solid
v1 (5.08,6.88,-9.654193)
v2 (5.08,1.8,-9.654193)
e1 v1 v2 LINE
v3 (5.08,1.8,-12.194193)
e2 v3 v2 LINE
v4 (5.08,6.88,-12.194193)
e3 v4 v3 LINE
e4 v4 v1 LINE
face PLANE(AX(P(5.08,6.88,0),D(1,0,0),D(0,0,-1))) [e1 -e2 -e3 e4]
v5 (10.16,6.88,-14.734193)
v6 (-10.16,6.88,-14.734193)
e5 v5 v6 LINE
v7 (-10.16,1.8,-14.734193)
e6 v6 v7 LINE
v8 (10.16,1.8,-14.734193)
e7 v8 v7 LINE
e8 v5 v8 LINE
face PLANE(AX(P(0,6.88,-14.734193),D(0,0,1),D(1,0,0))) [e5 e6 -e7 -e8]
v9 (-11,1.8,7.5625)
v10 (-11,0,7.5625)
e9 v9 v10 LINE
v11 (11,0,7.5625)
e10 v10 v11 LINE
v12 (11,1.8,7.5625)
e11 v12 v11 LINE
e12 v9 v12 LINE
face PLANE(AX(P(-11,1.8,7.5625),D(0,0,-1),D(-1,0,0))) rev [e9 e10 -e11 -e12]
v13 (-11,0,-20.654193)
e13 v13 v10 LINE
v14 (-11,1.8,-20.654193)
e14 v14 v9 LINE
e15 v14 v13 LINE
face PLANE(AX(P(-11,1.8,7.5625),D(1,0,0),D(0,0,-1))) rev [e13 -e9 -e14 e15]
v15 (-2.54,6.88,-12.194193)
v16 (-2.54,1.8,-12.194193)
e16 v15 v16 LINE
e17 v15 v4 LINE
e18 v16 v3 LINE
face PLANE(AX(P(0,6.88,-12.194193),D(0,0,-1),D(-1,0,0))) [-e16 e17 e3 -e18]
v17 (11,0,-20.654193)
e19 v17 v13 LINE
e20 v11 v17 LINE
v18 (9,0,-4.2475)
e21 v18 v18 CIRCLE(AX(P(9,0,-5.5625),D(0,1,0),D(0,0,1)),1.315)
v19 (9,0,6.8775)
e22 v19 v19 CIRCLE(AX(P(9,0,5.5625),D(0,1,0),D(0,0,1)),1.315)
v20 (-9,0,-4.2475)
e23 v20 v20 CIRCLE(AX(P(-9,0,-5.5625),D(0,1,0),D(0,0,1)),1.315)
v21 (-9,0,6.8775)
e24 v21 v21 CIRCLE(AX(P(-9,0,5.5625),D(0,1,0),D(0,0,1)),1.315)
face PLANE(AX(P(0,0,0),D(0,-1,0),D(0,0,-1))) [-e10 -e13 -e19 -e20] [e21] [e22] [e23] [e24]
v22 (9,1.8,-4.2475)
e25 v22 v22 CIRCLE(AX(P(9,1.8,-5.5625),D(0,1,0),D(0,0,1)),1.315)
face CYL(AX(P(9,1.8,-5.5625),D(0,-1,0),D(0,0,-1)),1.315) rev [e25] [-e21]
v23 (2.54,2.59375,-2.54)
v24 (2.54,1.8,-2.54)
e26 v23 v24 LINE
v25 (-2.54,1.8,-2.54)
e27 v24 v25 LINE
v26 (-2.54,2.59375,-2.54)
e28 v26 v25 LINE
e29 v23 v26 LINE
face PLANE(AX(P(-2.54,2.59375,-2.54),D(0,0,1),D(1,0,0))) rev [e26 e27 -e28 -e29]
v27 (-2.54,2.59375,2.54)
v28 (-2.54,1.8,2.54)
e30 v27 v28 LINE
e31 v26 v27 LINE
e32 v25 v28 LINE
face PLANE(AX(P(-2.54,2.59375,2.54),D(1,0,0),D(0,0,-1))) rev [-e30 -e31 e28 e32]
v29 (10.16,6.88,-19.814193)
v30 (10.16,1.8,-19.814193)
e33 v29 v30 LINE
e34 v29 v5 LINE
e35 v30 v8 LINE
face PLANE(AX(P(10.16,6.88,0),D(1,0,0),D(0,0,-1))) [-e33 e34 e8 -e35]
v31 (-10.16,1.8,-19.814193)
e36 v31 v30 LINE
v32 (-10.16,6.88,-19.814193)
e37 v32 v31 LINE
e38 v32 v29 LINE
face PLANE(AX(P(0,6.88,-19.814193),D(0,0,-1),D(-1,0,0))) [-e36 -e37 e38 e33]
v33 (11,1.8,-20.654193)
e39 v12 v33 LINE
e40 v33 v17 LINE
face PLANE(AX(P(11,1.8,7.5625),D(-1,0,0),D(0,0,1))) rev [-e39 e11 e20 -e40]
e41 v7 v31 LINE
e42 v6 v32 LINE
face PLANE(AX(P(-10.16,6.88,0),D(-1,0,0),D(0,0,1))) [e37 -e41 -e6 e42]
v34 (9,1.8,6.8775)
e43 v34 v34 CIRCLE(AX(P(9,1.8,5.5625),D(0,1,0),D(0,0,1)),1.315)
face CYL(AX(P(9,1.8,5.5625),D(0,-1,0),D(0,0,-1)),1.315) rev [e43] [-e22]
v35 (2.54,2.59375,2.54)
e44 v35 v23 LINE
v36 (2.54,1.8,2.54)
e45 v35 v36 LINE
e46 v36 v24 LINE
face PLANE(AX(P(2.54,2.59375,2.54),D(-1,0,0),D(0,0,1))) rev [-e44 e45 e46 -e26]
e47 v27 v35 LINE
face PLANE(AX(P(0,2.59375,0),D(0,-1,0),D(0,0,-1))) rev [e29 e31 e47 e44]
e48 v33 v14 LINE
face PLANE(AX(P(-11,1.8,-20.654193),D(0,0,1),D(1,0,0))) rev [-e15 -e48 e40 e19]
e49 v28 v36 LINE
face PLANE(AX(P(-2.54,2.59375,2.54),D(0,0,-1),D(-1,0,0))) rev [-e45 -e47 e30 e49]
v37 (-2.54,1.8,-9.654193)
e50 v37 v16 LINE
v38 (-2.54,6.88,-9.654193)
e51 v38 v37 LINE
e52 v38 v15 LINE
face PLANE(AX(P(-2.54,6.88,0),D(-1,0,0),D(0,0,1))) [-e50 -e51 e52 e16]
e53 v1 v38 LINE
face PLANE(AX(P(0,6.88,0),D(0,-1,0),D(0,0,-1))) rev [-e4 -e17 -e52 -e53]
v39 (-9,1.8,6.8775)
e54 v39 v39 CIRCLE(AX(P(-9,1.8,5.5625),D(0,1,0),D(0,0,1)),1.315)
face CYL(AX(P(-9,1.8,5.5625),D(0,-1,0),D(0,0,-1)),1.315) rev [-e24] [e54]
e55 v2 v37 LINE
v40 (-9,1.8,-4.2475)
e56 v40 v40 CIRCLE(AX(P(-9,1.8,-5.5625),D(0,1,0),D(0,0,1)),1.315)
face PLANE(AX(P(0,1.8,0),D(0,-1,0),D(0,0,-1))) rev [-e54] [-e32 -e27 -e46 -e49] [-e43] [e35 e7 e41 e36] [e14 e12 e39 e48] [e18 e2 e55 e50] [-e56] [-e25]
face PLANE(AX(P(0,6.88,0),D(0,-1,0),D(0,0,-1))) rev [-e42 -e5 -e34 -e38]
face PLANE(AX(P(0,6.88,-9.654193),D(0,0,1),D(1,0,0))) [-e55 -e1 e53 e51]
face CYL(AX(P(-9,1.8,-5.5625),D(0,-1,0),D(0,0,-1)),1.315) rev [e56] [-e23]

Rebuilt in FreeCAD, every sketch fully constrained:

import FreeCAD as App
import Part
import Sketcher
from FreeCAD import Vector
Q = App.Units.Quantity


def add_polygon(sketch, points):
    """Adds a closed chain of lines whose ends are joined by coincident constraints."""
    first, n = sketch.GeometryCount, len(points)
    for a, b in zip(points, points[1:] + points[:1]):
        sketch.addGeometry(Part.LineSegment(App.Vector(*a, 0), App.Vector(*b, 0)), False)
    for i in range(n):
        sketch.addConstraint(Sketcher.Constraint("Coincident", first + i, 2, first + (i + 1) % n, 1))

doc = App.newDocument("Part")
params = doc.addObject("Spreadsheet::Sheet", "Params")
for row, (alias, value) in enumerate([
    ("pad1_length", "1.8 mm"),
    ("sketch2_width", "0.2 in"),
    ("pad2_length", "0.03125 in"),
    ("sketch3_width", "0.3 in"),
    ("sketch3_width2", "0.8 in"),
    ("sketch3_height", "0.1 in"),
    ("sketch3_height2", "0.2 in"),
    ("pad3_length", "0.2 in"),
], start=1):
    params.set(f"A{row}", alias)
    params.set(f"B{row}", "=" + value)
    params.setAlias(f"B{row}", alias)

body = doc.addObject("PartDesign::Body", "Body")

# Sketch on XZ plane
sketch1 = body.newObject("Sketcher::SketchObject", "Sketch")
sketch1.AttachmentSupport = (doc.getObject("XZ_Plane"), [""])
sketch1.MapMode = "FlatFace"
add_polygon(sketch1, [(-11, -20.7), (-11, 7.6), (11, 7.6), (11, -20.7)])  # lines 0-3
sketch1.addGeometry(Part.Circle(Vector(-9, 5.6, 0), Vector(0, 0, 1), 1.3), False)  # 4
sketch1.addGeometry(Part.Circle(Vector(9, 5.6, 0), Vector(0, 0, 1), 1.3), False)  # 5
sketch1.addGeometry(Part.Circle(Vector(-9, -5.6, 0), Vector(0, 0, 1), 1.3), False)  # 6
sketch1.addGeometry(Part.Circle(Vector(9, -5.6, 0), Vector(0, 0, 1), 1.3), False)  # 7
sketch1.addConstraint(Sketcher.Constraint("Vertical", 0))
sketch1.addConstraint(Sketcher.Constraint("Horizontal", 1))
sketch1.addConstraint(Sketcher.Constraint("Vertical", 2))
sketch1.addConstraint(Sketcher.Constraint("Horizontal", 3))
sketch1.addConstraint(Sketcher.Constraint("Equal", 4, 5))
sketch1.addConstraint(Sketcher.Constraint("Equal", 5, 6))
sketch1.addConstraint(Sketcher.Constraint("Equal", 6, 7))
sketch1.addConstraint(Sketcher.Constraint("Symmetric", 5, 3, 6, 3, -1, 1))
sketch1.addConstraint(Sketcher.Constraint("Symmetric", 4, 3, 7, 3, -1, 1))
sketch1.addConstraint(Sketcher.Constraint("Symmetric", 4, 3, 5, 3, -2))
sketch1.addConstraint(Sketcher.Constraint("Diameter", 4, Q("2.63 mm")))
sketch1.addConstraint(Sketcher.Constraint("DistanceX", 1, 1, 1, 2, Q("22 mm")))
sketch1.addConstraint(Sketcher.Constraint("DistanceX", 4, 3, -1, 1, Q("9 mm")))
sketch1.addConstraint(Sketcher.Constraint("DistanceY", -1, 1, 4, 3, Q("5.5625 mm")))
sketch1.addConstraint(Sketcher.Constraint("DistanceX", 0, 2, -1, 1, Q("11 mm")))
sketch1.addConstraint(Sketcher.Constraint("DistanceY", -1, 1, 0, 2, Q("7.5625 mm")))
sketch1.addConstraint(Sketcher.Constraint("DistanceY", 0, 1, 0, 2, Q("28.216693 mm")))
pad1 = body.newObject("PartDesign::Pad", "Pad")
pad1.Profile = sketch1
pad1.setExpression("Length", "Params.pad1_length")
pad1.Reversed = True

# Sketch on XZ plane
sketch2 = body.newObject("Sketcher::SketchObject", "Sketch001")
sketch2.AttachmentSupport = (doc.getObject("XZ_Plane"), [""])
sketch2.MapMode = "FlatFace"
sketch2.AttachmentOffset = App.Placement(Vector(0, 0, -1.8), App.Rotation())
add_polygon(sketch2, [(-3, -3), (-3, 3), (3, 3), (3, -3)])  # lines 0-3
sketch2.addConstraint(Sketcher.Constraint("Vertical", 0))
sketch2.addConstraint(Sketcher.Constraint("Horizontal", 1))
sketch2.addConstraint(Sketcher.Constraint("Vertical", 2))
sketch2.addConstraint(Sketcher.Constraint("Horizontal", 3))
sketch2.addConstraint(Sketcher.Constraint("Symmetric", 0, 2, 2, 2, -1, 1))
sketch2.addConstraint(Sketcher.Constraint("Equal", 3, 0))
sketch2.addConstraint(Sketcher.Constraint("DistanceX", 1, 1, 1, 2, Q("0.2 in")))
sketch2.setExpression("Constraints[10]", "Params.sketch2_width")
pad2 = body.newObject("PartDesign::Pad", "Pad001")
pad2.Profile = sketch2
pad2.setExpression("Length", "Params.pad2_length")
pad2.Reversed = True

# Sketch on XZ plane
sketch3 = body.newObject("Sketcher::SketchObject", "Sketch002")
sketch3.AttachmentSupport = (doc.getObject("XZ_Plane"), [""])
sketch3.MapMode = "FlatFace"
sketch3.AttachmentOffset = App.Placement(Vector(0, 0, -1.8), App.Rotation())
add_polygon(sketch3, [(5.1, -12.2), (5.1, -9.7), (-2.5, -9.7), (-2.5, -12.2)])  # lines 0-3
add_polygon(sketch3, [(10.2, -19.8), (10.2, -14.7), (-10.2, -14.7), (-10.2, -19.8)])  # lines 4-7
sketch3.addConstraint(Sketcher.Constraint("Vertical", 0))
sketch3.addConstraint(Sketcher.Constraint("Horizontal", 1))
sketch3.addConstraint(Sketcher.Constraint("Vertical", 2))
sketch3.addConstraint(Sketcher.Constraint("Horizontal", 3))
sketch3.addConstraint(Sketcher.Constraint("Vertical", 4))
sketch3.addConstraint(Sketcher.Constraint("Horizontal", 5))
sketch3.addConstraint(Sketcher.Constraint("Vertical", 6))
sketch3.addConstraint(Sketcher.Constraint("Horizontal", 7))
sketch3.addConstraint(Sketcher.Constraint("DistanceX", 1, 2, 1, 1, Q("0.3 in")))
sketch3.addConstraint(Sketcher.Constraint("DistanceX", 5, 2, 5, 1, Q("0.8 in")))
sketch3.addConstraint(Sketcher.Constraint("DistanceY", 0, 1, 0, 2, Q("0.1 in")))
sketch3.addConstraint(Sketcher.Constraint("DistanceY", 4, 1, 4, 2, Q("0.2 in")))
sketch3.addConstraint(Sketcher.Constraint("DistanceX", -1, 1, 0, 2, Q("0.2 in")))
sketch3.addConstraint(Sketcher.Constraint("DistanceX", -1, 1, 4, 2, Q("0.4 in")))
sketch3.addConstraint(Sketcher.Constraint("DistanceY", 4, 2, 3, 2, Q("0.1 in")))
sketch3.addConstraint(Sketcher.Constraint("DistanceY", 0, 2, -1, 1, Q("9.654193 mm")))
sketch3.setExpression("Constraints[16]", "Params.sketch3_width")
sketch3.setExpression("Constraints[17]", "Params.sketch3_width2")
sketch3.setExpression("Constraints[18]", "Params.sketch3_height")
sketch3.setExpression("Constraints[19]", "Params.sketch3_height2")
pad3 = body.newObject("PartDesign::Pad", "Pad002")
pad3.Profile = sketch3
pad3.setExpression("Length", "Params.pad3_length")
pad3.Reversed = True

doc.recompute()
